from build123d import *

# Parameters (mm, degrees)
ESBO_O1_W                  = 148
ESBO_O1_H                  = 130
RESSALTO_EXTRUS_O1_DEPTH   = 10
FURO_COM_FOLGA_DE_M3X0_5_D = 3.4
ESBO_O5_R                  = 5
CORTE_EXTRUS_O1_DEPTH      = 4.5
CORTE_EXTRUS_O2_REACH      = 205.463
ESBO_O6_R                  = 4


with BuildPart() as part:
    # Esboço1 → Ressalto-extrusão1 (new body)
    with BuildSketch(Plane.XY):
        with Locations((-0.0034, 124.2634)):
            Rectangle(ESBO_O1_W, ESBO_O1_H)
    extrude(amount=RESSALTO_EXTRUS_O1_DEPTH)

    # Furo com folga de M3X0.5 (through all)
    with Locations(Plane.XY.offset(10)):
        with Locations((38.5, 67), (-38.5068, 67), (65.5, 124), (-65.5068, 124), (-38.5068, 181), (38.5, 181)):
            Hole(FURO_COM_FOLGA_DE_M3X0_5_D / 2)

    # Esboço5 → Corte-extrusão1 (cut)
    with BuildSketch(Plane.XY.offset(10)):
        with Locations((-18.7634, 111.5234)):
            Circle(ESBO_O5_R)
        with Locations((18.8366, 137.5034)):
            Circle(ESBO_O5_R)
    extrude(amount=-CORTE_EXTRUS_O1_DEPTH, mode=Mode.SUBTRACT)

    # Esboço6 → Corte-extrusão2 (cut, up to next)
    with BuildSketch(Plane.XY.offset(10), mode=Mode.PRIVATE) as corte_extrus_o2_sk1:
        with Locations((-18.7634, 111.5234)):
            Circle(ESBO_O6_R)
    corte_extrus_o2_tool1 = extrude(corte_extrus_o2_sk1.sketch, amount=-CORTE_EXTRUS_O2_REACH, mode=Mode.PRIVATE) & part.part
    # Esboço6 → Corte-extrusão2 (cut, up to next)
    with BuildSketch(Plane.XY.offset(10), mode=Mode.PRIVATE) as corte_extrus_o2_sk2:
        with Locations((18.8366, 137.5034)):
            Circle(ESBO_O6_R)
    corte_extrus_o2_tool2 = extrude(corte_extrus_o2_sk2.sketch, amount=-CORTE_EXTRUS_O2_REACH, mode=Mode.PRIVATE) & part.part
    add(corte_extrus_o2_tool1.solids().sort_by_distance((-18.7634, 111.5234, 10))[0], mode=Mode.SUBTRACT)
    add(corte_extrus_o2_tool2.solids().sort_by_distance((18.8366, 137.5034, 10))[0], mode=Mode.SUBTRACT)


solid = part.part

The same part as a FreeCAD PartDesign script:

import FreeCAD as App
import Part
import Sketcher

V = App.Vector

doc = App.newDocument("Part")
body = doc.addObject("PartDesign::Body", "Body")

# Sketch on XY plane
sketch1 = doc.addObject("Sketcher::SketchObject", "Sketch")
body.addObject(sketch1)
sketch1.AttachmentSupport = (doc.XY_Plane, [""])
sketch1.MapMode = "FlatFace"
sketch1.addGeometry(Part.LineSegment(V(-74, 189, 0), V(-74, 59, 0)), False)
sketch1.addGeometry(Part.LineSegment(V(-74, 59, 0), V(74, 59, 0)), False)
sketch1.addGeometry(Part.LineSegment(V(74, 59, 0), V(74, 189, 0)), False)
sketch1.addGeometry(Part.LineSegment(V(74, 189, 0), V(-74, 189, 0)), False)
sketch1.addConstraint(Sketcher.Constraint("Coincident", 0, 2, 1, 1))
sketch1.addConstraint(Sketcher.Constraint("Coincident", 1, 2, 2, 1))
sketch1.addConstraint(Sketcher.Constraint("Coincident", 2, 2, 3, 1))
sketch1.addConstraint(Sketcher.Constraint("Coincident", 3, 2, 0, 1))
sketch1.addConstraint(Sketcher.Constraint("Vertical", 0))
sketch1.addConstraint(Sketcher.Constraint("Horizontal", 1))
sketch1.addConstraint(Sketcher.Constraint("Vertical", 2))
sketch1.addConstraint(Sketcher.Constraint("Horizontal", 3))
sketch1.addConstraint(Sketcher.Constraint("DistanceX", 1, 1, 1, 2, 148.0))
sketch1.addConstraint(Sketcher.Constraint("DistanceY", 0, 2, 0, 1, 130.0))
sketch1.addConstraint(Sketcher.Constraint("DistanceX", 0, 2, -1, 1, 74.0034))
sketch1.addConstraint(Sketcher.Constraint("DistanceY", -1, 1, 0, 2, 59.2634))
pad1 = doc.addObject("PartDesign::Pad", "Pad")
body.addObject(pad1)
pad1.Profile = sketch1
pad1.Length = 10

# Sketch on XY plane
sketch2 = doc.addObject("Sketcher::SketchObject", "Sketch001")
body.addObject(sketch2)
sketch2.AttachmentSupport = (doc.XY_Plane, [""])
sketch2.MapMode = "FlatFace"
sketch2.AttachmentOffset = App.Placement(V(0, 0, 10), App.Rotation())
sketch2.addGeometry(Part.Circle(V(38.5, 67, 0), V(0, 0, 1), 1.7), False)
sketch2.addGeometry(Part.Circle(V(-38.5, 67, 0), V(0, 0, 1), 1.7), False)
sketch2.addGeometry(Part.Circle(V(65.5, 124, 0), V(0, 0, 1), 1.7), False)
sketch2.addGeometry(Part.Circle(V(-65.5, 124, 0), V(0, 0, 1), 1.7), False)
sketch2.addGeometry(Part.Circle(V(-38.5, 181, 0), V(0, 0, 1), 1.7), False)
sketch2.addGeometry(Part.Circle(V(38.5, 181, 0), V(0, 0, 1), 1.7), False)
sketch2.addConstraint(Sketcher.Constraint("Equal", 0, 1))
sketch2.addConstraint(Sketcher.Constraint("Equal", 1, 2))
sketch2.addConstraint(Sketcher.Constraint("Equal", 2, 3))
sketch2.addConstraint(Sketcher.Constraint("Equal", 3, 4))
sketch2.addConstraint(Sketcher.Constraint("Equal", 4, 5))
sketch2.addConstraint(Sketcher.Constraint("Horizontal", 0, 3, 1, 3))
sketch2.addConstraint(Sketcher.Constraint("Horizontal", 2, 3, 3, 3))
sketch2.addConstraint(Sketcher.Constraint("Horizontal", 4, 3, 5, 3))
sketch2.addConstraint(Sketcher.Constraint("Vertical", 1, 3, 4, 3))
sketch2.addConstraint(Sketcher.Constraint("Vertical", 0, 3, 5, 3))
sketch2.addConstraint(Sketcher.Constraint("Diameter", 0, 3.4))
sketch2.addConstraint(Sketcher.Constraint("DistanceY", -1, 1, 0, 3, 67.0))
sketch2.addConstraint(Sketcher.Constraint("DistanceY", -1, 1, 2, 3, 124.0))
sketch2.addConstraint(Sketcher.Constraint("DistanceY", -1, 1, 4, 3, 181.0))
sketch2.addConstraint(Sketcher.Constraint("DistanceX", 0, 3, 2, 3, 27.0))
sketch2.addConstraint(Sketcher.Constraint("DistanceX", 3, 3, 1, 3, 27.0))
sketch2.addConstraint(Sketcher.Constraint("DistanceX", -1, 1, 0, 3, 38.5))
sketch2.addConstraint(Sketcher.Constraint("DistanceX", 1, 3, -1, 1, 38.5068))
doc.recompute()
hole = doc.addObject("PartDesign::Hole", "Hole")
body.addObject(hole)
hole.Profile = sketch2
hole.ThreadType = "None"
hole.Diameter = 3.4
hole.DepthType = "ThroughAll"

# Sketch on XY plane
sketch3 = doc.addObject("Sketcher::SketchObject", "Sketch002")
body.addObject(sketch3)
sketch3.AttachmentSupport = (doc.XY_Plane, [""])
sketch3.MapMode = "FlatFace"
sketch3.AttachmentOffset = App.Placement(V(0, 0, 10), App.Rotation())
sketch3.addGeometry(Part.Circle(V(-19, 112, 0), V(0, 0, 1), 5), False)
sketch3.addGeometry(Part.Circle(V(19, 138, 0), V(0, 0, 1), 5), False)
sketch3.addConstraint(Sketcher.Constraint("Equal", 0, 1))
sketch3.addConstraint(Sketcher.Constraint("Diameter", 0, 10.0))
sketch3.addConstraint(Sketcher.Constraint("DistanceX", 0, 3, 1, 3, 37.6))
sketch3.addConstraint(Sketcher.Constraint("DistanceY", 0, 3, 1, 3, 25.98))
sketch3.addConstraint(Sketcher.Constraint("DistanceX", 0, 3, -1, 1, 18.7634))
sketch3.addConstraint(Sketcher.Constraint("DistanceY", -1, 1, 0, 3, 111.5234))
pocket1 = doc.addObject("PartDesign::Pocket", "Pocket")
body.addObject(pocket1)
pocket1.Profile = sketch3
pocket1.Length = 4.5

# Sketch on XY plane
sketch4 = doc.addObject("Sketcher::SketchObject", "Sketch003")
body.addObject(sketch4)
sketch4.AttachmentSupport = (doc.XY_Plane, [""])
sketch4.MapMode = "FlatFace"
sketch4.AttachmentOffset = App.Placement(V(0, 0, 10), App.Rotation())
sketch4.addGeometry(Part.Circle(V(-18.8, 111.5, 0), V(0, 0, 1), 4), False)
sketch4.addConstraint(Sketcher.Constraint("Diameter", 0, 8.0))
sketch4.addConstraint(Sketcher.Constraint("DistanceX", 0, 3, -1, 1, 18.7634))
sketch4.addConstraint(Sketcher.Constraint("DistanceY", -1, 1, 0, 3, 111.5234))
pocket2 = doc.addObject("PartDesign::Pocket", "Pocket001")
body.addObject(pocket2)
pocket2.Profile = sketch4
pocket2.Length = 10

# Sketch on XY plane
sketch5 = doc.addObject("Sketcher::SketchObject", "Sketch004")
body.addObject(sketch5)
sketch5.AttachmentSupport = (doc.XY_Plane, [""])
sketch5.MapMode = "FlatFace"
sketch5.AttachmentOffset = App.Placement(V(0, 0, 10), App.Rotation())
sketch5.addGeometry(Part.Circle(V(18.8, 137.5, 0), V(0, 0, 1), 4), False)
sketch5.addConstraint(Sketcher.Constraint("Diameter", 0, 8.0))
sketch5.addConstraint(Sketcher.Constraint("DistanceX", -1, 1, 0, 3, 18.8366))
sketch5.addConstraint(Sketcher.Constraint("DistanceY", -1, 1, 0, 3, 137.5034))
pocket3 = doc.addObject("PartDesign::Pocket", "Pocket002")
body.addObject(pocket3)
pocket3.Profile = sketch5
pocket3.Length = 10

doc.recompute()
